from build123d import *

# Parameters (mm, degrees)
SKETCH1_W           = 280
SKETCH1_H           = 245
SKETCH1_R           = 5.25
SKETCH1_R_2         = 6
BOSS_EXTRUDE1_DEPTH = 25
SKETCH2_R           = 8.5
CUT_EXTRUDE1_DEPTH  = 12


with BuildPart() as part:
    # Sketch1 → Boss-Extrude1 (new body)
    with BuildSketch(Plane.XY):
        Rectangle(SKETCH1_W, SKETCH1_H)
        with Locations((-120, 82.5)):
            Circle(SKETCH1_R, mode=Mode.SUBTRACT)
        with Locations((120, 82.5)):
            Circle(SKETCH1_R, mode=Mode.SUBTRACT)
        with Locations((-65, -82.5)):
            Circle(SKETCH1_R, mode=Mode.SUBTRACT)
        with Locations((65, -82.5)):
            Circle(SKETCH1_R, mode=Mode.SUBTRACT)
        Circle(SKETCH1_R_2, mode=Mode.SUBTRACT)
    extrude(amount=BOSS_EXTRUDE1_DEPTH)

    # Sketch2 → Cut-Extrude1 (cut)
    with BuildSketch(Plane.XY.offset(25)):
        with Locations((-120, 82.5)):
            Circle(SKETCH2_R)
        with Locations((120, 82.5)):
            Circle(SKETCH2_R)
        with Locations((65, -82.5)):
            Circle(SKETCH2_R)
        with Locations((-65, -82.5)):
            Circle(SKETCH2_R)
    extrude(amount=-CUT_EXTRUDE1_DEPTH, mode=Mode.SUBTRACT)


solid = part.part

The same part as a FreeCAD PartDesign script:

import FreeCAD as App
import Part
import Sketcher
Q = App.Units.Quantity

doc = App.newDocument("Part")
body = doc.addObject("PartDesign::Body", "Body")

sketch1 = body.newObject("Sketcher::SketchObject", "Sketch")
sketch1.AttachmentSupport = (doc.getObject("XY_Plane"), [""])
sketch1.MapMode = "FlatFace"
sketch1.addGeometry([
    Part.LineSegment(App.Vector(-140, 122, 0), App.Vector(-140, -122, 0)),
    Part.LineSegment(App.Vector(-140, -122, 0), App.Vector(140, -122, 0)),
    Part.LineSegment(App.Vector(140, -122, 0), App.Vector(140, 122, 0)),
    Part.LineSegment(App.Vector(140, 122, 0), App.Vector(-140, 122, 0)),
    Part.Circle(App.Vector(-65, -82, 0), App.Vector(0, 0, 1), 5),
    Part.Circle(App.Vector(65, -82, 0), App.Vector(0, 0, 1), 5),
    Part.Circle(App.Vector(0, 0, 0), App.Vector(0, 0, 1), 6),
    Part.Circle(App.Vector(-120, 82, 0), App.Vector(0, 0, 1), 5),
    Part.Circle(App.Vector(120, 82, 0), App.Vector(0, 0, 1), 5),
], False)
sketch1.addConstraint([
    Sketcher.Constraint("Coincident", 0, 2, 1, 1),
    Sketcher.Constraint("Coincident", 1, 2, 2, 1),
    Sketcher.Constraint("Coincident", 2, 2, 3, 1),
    Sketcher.Constraint("Coincident", 3, 2, 0, 1),
    Sketcher.Constraint("Vertical", 0),
    Sketcher.Constraint("Horizontal", 1),
    Sketcher.Constraint("Vertical", 2),
    Sketcher.Constraint("Horizontal", 3),
    Sketcher.Constraint("Coincident", 6, 3, -1, 1),
    Sketcher.Constraint("Equal", 4, 5),
    Sketcher.Constraint("Equal", 5, 7),
    Sketcher.Constraint("Equal", 7, 8),
    Sketcher.Constraint("Symmetric", 0, 2, 2, 2, -1, 1),
    Sketcher.Constraint("Symmetric", 4, 3, 5, 3, -2),
    Sketcher.Constraint("Symmetric", 7, 3, 8, 3, -2),
    Sketcher.Constraint("Diameter", 6, Q("12 mm")),
    Sketcher.Constraint("Diameter", 4, Q("10.5 mm")),
    Sketcher.Constraint("DistanceX", 1, 1, 1, 2, Q("280 mm")),
    Sketcher.Constraint("DistanceY", 0, 2, 0, 1, Q("245 mm")),
    Sketcher.Constraint("DistanceX", 4, 3, -1, 1, Q("65 mm")),
    Sketcher.Constraint("DistanceX", 7, 3, -1, 1, Q("120 mm")),
    Sketcher.Constraint("DistanceY", 4, 3, 7, 3, Q("165 mm")),
    Sketcher.Constraint("DistanceY", 0, 2, 4, 3, Q("40 mm")),
])
pad1 = body.newObject("PartDesign::Pad", "Pad")
pad1.Profile = sketch1
pad1.Length = 25

sketch2 = body.newObject("Sketcher::SketchObject", "Sketch001")
sketch2.AttachmentSupport = (doc.getObject("XY_Plane"), [""])
sketch2.MapMode = "FlatFace"
sketch2.AttachmentOffset = App.Placement(App.Vector(0, 0, 25), App.Rotation())
sketch2.addGeometry([
    Part.Circle(App.Vector(-120, 82, 0), App.Vector(0, 0, 1), 8),
    Part.Circle(App.Vector(120, 82, 0), App.Vector(0, 0, 1), 8),
    Part.Circle(App.Vector(65, -82, 0), App.Vector(0, 0, 1), 8),
    Part.Circle(App.Vector(-65, -82, 0), App.Vector(0, 0, 1), 8),
], False)
sketch2.addConstraint([
    Sketcher.Constraint("Equal", 0, 1),
    Sketcher.Constraint("Equal", 1, 2),
    Sketcher.Constraint("Equal", 2, 3),
    Sketcher.Constraint("Symmetric", 0, 3, 1, 3, -2),
    Sketcher.Constraint("Symmetric", 2, 3, 3, 3, -2),
    Sketcher.Constraint("Diameter", 0, Q("17 mm")),
    Sketcher.Constraint("DistanceX", 0, 3, -1, 1, Q("120 mm")),
    Sketcher.Constraint("DistanceX", -1, 1, 2, 3, Q("65 mm")),
    Sketcher.Constraint("DistanceY", 2, 3, 1, 3, Q("165 mm")),
    Sketcher.Constraint("DistanceY", -1, 1, 0, 3, Q("82.5 mm")),
])
pocket1 = body.newObject("PartDesign::Pocket", "Pocket")
pocket1.Profile = sketch2
pocket1.Length = 12

doc.recompute()
